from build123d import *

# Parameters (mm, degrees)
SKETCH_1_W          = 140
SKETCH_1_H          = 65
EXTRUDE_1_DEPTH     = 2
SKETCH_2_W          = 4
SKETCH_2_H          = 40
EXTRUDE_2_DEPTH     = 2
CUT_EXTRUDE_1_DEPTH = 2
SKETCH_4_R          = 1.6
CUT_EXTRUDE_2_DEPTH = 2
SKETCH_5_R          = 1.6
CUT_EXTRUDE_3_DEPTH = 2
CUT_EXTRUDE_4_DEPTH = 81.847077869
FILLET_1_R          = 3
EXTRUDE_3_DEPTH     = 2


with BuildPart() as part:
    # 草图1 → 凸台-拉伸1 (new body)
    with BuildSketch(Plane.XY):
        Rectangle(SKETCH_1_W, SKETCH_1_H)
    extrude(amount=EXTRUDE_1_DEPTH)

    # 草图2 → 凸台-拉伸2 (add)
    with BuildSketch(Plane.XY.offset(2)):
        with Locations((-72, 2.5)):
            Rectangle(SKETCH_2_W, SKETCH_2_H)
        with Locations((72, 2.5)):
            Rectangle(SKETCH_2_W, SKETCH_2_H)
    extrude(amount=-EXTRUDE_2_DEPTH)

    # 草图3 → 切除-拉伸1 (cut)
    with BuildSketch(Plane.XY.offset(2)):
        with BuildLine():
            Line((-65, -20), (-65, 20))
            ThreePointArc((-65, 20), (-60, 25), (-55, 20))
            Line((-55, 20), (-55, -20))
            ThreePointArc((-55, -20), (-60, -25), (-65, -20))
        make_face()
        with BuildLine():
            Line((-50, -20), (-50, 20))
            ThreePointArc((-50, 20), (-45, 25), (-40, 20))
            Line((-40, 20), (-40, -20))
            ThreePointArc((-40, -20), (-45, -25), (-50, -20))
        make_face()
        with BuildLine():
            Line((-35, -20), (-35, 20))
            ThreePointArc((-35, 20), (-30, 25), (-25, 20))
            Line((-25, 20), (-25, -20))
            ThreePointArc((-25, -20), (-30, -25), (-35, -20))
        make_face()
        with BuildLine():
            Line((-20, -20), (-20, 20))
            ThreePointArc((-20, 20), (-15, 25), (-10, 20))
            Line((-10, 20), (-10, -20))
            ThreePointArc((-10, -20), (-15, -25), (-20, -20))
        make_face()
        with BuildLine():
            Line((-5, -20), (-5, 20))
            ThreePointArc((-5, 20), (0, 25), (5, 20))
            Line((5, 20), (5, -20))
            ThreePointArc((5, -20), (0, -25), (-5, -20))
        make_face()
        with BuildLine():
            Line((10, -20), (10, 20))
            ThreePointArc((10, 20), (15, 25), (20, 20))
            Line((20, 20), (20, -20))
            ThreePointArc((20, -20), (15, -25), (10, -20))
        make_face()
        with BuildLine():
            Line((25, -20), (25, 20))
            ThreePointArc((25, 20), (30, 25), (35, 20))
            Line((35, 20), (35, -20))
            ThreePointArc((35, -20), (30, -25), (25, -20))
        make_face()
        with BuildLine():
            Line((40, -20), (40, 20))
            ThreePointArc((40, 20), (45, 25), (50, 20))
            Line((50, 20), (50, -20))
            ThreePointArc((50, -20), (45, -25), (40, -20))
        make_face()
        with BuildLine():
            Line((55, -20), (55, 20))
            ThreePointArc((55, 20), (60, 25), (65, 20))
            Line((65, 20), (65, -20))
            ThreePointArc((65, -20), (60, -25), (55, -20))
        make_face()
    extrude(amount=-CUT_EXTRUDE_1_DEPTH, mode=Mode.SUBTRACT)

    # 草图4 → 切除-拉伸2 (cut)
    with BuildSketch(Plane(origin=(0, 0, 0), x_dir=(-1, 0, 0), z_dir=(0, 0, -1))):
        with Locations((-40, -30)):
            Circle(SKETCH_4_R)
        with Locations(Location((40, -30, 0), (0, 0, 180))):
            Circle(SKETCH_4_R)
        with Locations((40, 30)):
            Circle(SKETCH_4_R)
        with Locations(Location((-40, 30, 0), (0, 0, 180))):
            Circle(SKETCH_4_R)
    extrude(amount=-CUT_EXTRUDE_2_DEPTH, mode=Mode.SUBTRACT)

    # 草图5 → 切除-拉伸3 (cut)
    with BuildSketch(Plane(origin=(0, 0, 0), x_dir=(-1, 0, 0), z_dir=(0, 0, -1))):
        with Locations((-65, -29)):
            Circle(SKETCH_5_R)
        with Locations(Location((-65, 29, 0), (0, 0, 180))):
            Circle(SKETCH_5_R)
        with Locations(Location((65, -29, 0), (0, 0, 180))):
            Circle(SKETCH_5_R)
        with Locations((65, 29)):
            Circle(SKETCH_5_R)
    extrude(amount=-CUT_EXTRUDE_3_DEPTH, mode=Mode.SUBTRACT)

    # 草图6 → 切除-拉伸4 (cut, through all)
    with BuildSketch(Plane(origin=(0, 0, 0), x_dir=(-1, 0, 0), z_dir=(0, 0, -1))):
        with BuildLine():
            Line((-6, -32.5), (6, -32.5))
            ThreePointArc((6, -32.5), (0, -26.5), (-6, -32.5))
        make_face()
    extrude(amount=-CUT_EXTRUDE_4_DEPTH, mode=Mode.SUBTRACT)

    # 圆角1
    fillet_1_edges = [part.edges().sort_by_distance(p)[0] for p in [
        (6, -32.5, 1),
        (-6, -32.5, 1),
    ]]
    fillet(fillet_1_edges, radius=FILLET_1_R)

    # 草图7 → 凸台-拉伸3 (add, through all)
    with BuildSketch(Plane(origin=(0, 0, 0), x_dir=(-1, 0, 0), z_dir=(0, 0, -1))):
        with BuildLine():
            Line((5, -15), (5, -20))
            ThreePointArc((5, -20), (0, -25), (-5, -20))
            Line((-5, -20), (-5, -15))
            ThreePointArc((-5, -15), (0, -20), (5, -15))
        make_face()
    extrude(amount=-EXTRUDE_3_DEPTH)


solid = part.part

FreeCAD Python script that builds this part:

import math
import FreeCAD as App
import Part
import Sketcher
from FreeCAD import Vector
Q = App.Units.Quantity


def edges_at(feature, points):
    """Names of the edges that pass closest to the given points."""
    edges = feature.Shape.Edges
    near = lambda p: min(range(len(edges)), key=lambda i: edges[i].distToShape(Part.Vertex(*p))[0])
    return sorted({f"Edge{near(p) + 1}" for p in points})

doc = App.newDocument("Part")
body = doc.addObject("PartDesign::Body", "Body")

# Sketch on XY plane
sketch1 = body.newObject("Sketcher::SketchObject", "Sketch")
sketch1.AttachmentSupport = (doc.getObject("XY_Plane"), [""])
sketch1.MapMode = "FlatFace"
sketch1.addGeometry([
    Part.LineSegment(Vector(-70, 32, 0), Vector(-70, -32, 0)),
    Part.LineSegment(Vector(-70, -32, 0), Vector(70, -32, 0)),
    Part.LineSegment(Vector(70, -32, 0), Vector(70, 32, 0)),
    Part.LineSegment(Vector(70, 32, 0), Vector(-70, 32, 0)),
], False)
sketch1.addConstraint([
    Sketcher.Constraint("Coincident", 0, 2, 1, 1),
    Sketcher.Constraint("Coincident", 1, 2, 2, 1),
    Sketcher.Constraint("Coincident", 2, 2, 3, 1),
    Sketcher.Constraint("Coincident", 3, 2, 0, 1),
    Sketcher.Constraint("Vertical", 0),
    Sketcher.Constraint("Horizontal", 1),
    Sketcher.Constraint("Vertical", 2),
    Sketcher.Constraint("Horizontal", 3),
    Sketcher.Constraint("Symmetric", 0, 2, 2, 2, -1, 1),
    Sketcher.Constraint("DistanceX", 1, 1, 1, 2, Q("140 mm")),
    Sketcher.Constraint("DistanceY", 0, 2, 0, 1, Q("65 mm")),
])
pad1 = body.newObject("PartDesign::Pad", "Pad")
pad1.Profile = sketch1
pad1.Length = 2

# Sketch on XY plane
sketch2 = body.newObject("Sketcher::SketchObject", "Sketch001")
sketch2.AttachmentSupport = (doc.getObject("XY_Plane"), [""])
sketch2.MapMode = "FlatFace"
sketch2.AttachmentOffset = App.Placement(Vector(0, 0, 2), App.Rotation())
sketch2.addGeometry([
    Part.LineSegment(Vector(-74, 22.5, 0), Vector(-74, -17.5, 0)),  # 0
    Part.LineSegment(Vector(-74, -17.5, 0), Vector(-70, -17.5, 0)),  # 1
    Part.LineSegment(Vector(-70, -17.5, 0), Vector(-70, 22.5, 0)),  # 2
    Part.LineSegment(Vector(-70, 22.5, 0), Vector(-74, 22.5, 0)),  # 3
    Part.LineSegment(Vector(70, 22.5, 0), Vector(70, -17.5, 0)),  # 4
    Part.LineSegment(Vector(70, -17.5, 0), Vector(74, -17.5, 0)),  # 5
    Part.LineSegment(Vector(74, -17.5, 0), Vector(74, 22.5, 0)),  # 6
    Part.LineSegment(Vector(74, 22.5, 0), Vector(70, 22.5, 0)),  # 7
], False)
sketch2.addConstraint([
    Sketcher.Constraint("Coincident", 0, 2, 1, 1),
    Sketcher.Constraint("Coincident", 1, 2, 2, 1),
    Sketcher.Constraint("Coincident", 2, 2, 3, 1),
    Sketcher.Constraint("Coincident", 3, 2, 0, 1),
    Sketcher.Constraint("Coincident", 4, 2, 5, 1),
    Sketcher.Constraint("Coincident", 5, 2, 6, 1),
    Sketcher.Constraint("Coincident", 6, 2, 7, 1),
    Sketcher.Constraint("Coincident", 7, 2, 4, 1),
    Sketcher.Constraint("Vertical", 0),
    Sketcher.Constraint("Horizontal", 1),
    Sketcher.Constraint("Vertical", 2),
    Sketcher.Constraint("Horizontal", 3),
    Sketcher.Constraint("Vertical", 4),
    Sketcher.Constraint("Horizontal", 5),
    Sketcher.Constraint("Vertical", 6),
    Sketcher.Constraint("Horizontal", 7),
    Sketcher.Constraint("Symmetric", 1, 2, 4, 2, -2),
    Sketcher.Constraint("Symmetric", 3, 2, 6, 2, -2),
    Sketcher.Constraint("DistanceX", 1, 1, 1, 2, Q("4 mm")),
    Sketcher.Constraint("DistanceY", 0, 2, 0, 1, Q("40 mm")),
    Sketcher.Constraint("DistanceX", 0, 2, -1, 1, Q("74 mm")),
    Sketcher.Constraint("DistanceY", 0, 2, -1, 1, Q("17.5 mm")),
])
pad2 = body.newObject("PartDesign::Pad", "Pad001")
pad2.Profile = sketch2
pad2.Length = 2
pad2.Reversed = True

# Sketch on XY plane
sketch3 = body.newObject("Sketcher::SketchObject", "Sketch002")
sketch3.AttachmentSupport = (doc.getObject("XY_Plane"), [""])
sketch3.MapMode = "FlatFace"
sketch3.AttachmentOffset = App.Placement(Vector(0, 0, 2), App.Rotation())
sketch3.addGeometry([
    Part.LineSegment(Vector(-65, 20, 0), Vector(-65, -20, 0)),  # 0
    Part.ArcOfCircle(Part.Circle(Vector(-60, -20, 0), Vector(0, 0, 1), 5), math.radians(180), math.radians(360)),  # 1
    Part.LineSegment(Vector(-55, -20, 0), Vector(-55, 20, 0)),  # 2
    Part.ArcOfCircle(Part.Circle(Vector(-60, 20, 0), Vector(0, 0, 1), 5), math.radians(0), math.radians(180)),  # 3
    Part.LineSegment(Vector(-50, 20, 0), Vector(-50, -20, 0)),  # 4
    Part.ArcOfCircle(Part.Circle(Vector(-45, -20, 0), Vector(0, 0, 1), 5), math.radians(180), math.radians(360)),  # 5
    Part.LineSegment(Vector(-40, -20, 0), Vector(-40, 20, 0)),  # 6
    Part.ArcOfCircle(Part.Circle(Vector(-45, 20, 0), Vector(0, 0, 1), 5), math.radians(0), math.radians(180)),  # 7
    Part.LineSegment(Vector(-35, 20, 0), Vector(-35, -20, 0)),  # 8
    Part.ArcOfCircle(Part.Circle(Vector(-30, -20, 0), Vector(0, 0, 1), 5), math.radians(180), math.radians(360)),  # 9
    Part.LineSegment(Vector(-25, -20, 0), Vector(-25, 20, 0)),  # 10
    Part.ArcOfCircle(Part.Circle(Vector(-30, 20, 0), Vector(0, 0, 1), 5), math.radians(0), math.radians(180)),  # 11
    Part.LineSegment(Vector(-20, 20, 0), Vector(-20, -20, 0)),  # 12
    Part.ArcOfCircle(Part.Circle(Vector(-15, -20, 0), Vector(0, 0, 1), 5), math.radians(180), math.radians(360)),  # 13
    Part.LineSegment(Vector(-10, -20, 0), Vector(-10, 20, 0)),  # 14
    Part.ArcOfCircle(Part.Circle(Vector(-15, 20, 0), Vector(0, 0, 1), 5), math.radians(0), math.radians(180)),  # 15
    Part.LineSegment(Vector(-5, 20, 0), Vector(-5, -20, 0)),  # 16
    Part.ArcOfCircle(Part.Circle(Vector(0, -20, 0), Vector(0, 0, 1), 5), math.radians(180), math.radians(360)),  # 17
    Part.LineSegment(Vector(5, -20, 0), Vector(5, 20, 0)),  # 18
    Part.ArcOfCircle(Part.Circle(Vector(0, 20, 0), Vector(0, 0, 1), 5), math.radians(0), math.radians(180)),  # 19
    Part.LineSegment(Vector(10, 20, 0), Vector(10, -20, 0)),  # 20
    Part.ArcOfCircle(Part.Circle(Vector(15, -20, 0), Vector(0, 0, 1), 5), math.radians(180), math.radians(360)),  # 21
    Part.LineSegment(Vector(20, -20, 0), Vector(20, 20, 0)),  # 22
    Part.ArcOfCircle(Part.Circle(Vector(15, 20, 0), Vector(0, 0, 1), 5), math.radians(0), math.radians(180)),  # 23
    Part.LineSegment(Vector(25, 20, 0), Vector(25, -20, 0)),  # 24
    Part.ArcOfCircle(Part.Circle(Vector(30, -20, 0), Vector(0, 0, 1), 5), math.radians(180), math.radians(360)),  # 25
    Part.LineSegment(Vector(35, -20, 0), Vector(35, 20, 0)),  # 26
    Part.ArcOfCircle(Part.Circle(Vector(30, 20, 0), Vector(0, 0, 1), 5), math.radians(0), math.radians(180)),  # 27
    Part.LineSegment(Vector(40, 20, 0), Vector(40, -20, 0)),  # 28
    Part.ArcOfCircle(Part.Circle(Vector(45, -20, 0), Vector(0, 0, 1), 5), math.radians(180), math.radians(360)),  # 29
    Part.LineSegment(Vector(50, -20, 0), Vector(50, 20, 0)),  # 30
    Part.ArcOfCircle(Part.Circle(Vector(45, 20, 0), Vector(0, 0, 1), 5), math.radians(0), math.radians(180)),  # 31
    Part.LineSegment(Vector(55, 20, 0), Vector(55, -20, 0)),  # 32
    Part.ArcOfCircle(Part.Circle(Vector(60, -20, 0), Vector(0, 0, 1), 5), math.radians(180), math.radians(360)),  # 33
    Part.LineSegment(Vector(65, -20, 0), Vector(65, 20, 0)),  # 34
    Part.ArcOfCircle(Part.Circle(Vector(60, 20, 0), Vector(0, 0, 1), 5), math.radians(0), math.radians(180)),  # 35
], False)
sketch3.addConstraint([
    Sketcher.Constraint("Tangent", 0, 2, 1, 1),
    Sketcher.Constraint("Tangent", 1, 2, 2, 1),
    Sketcher.Constraint("Tangent", 2, 2, 3, 1),
    Sketcher.Constraint("Tangent", 3, 2, 0, 1),
    Sketcher.Constraint("Tangent", 4, 2, 5, 1),
    Sketcher.Constraint("Tangent", 5, 2, 6, 1),
    Sketcher.Constraint("Tangent", 6, 2, 7, 1),
    Sketcher.Constraint("Tangent", 7, 2, 4, 1),
    Sketcher.Constraint("Tangent", 8, 2, 9, 1),
    Sketcher.Constraint("Tangent", 9, 2, 10, 1),
    Sketcher.Constraint("Tangent", 10, 2, 11, 1),
    Sketcher.Constraint("Tangent", 11, 2, 8, 1),
    Sketcher.Constraint("Tangent", 12, 2, 13, 1),
    Sketcher.Constraint("Tangent", 13, 2, 14, 1),
    Sketcher.Constraint("Tangent", 14, 2, 15, 1),
    Sketcher.Constraint("Tangent", 15, 2, 12, 1),
    Sketcher.Constraint("Tangent", 16, 2, 17, 1),
    Sketcher.Constraint("Tangent", 17, 2, 18, 1),
    Sketcher.Constraint("Tangent", 18, 2, 19, 1),
    Sketcher.Constraint("Tangent", 19, 2, 16, 1),
    Sketcher.Constraint("Tangent", 20, 2, 21, 1),
    Sketcher.Constraint("Tangent", 21, 2, 22, 1),
    Sketcher.Constraint("Tangent", 22, 2, 23, 1),
    Sketcher.Constraint("Tangent", 23, 2, 20, 1),
    Sketcher.Constraint("Tangent", 24, 2, 25, 1),
    Sketcher.Constraint("Tangent", 25, 2, 26, 1),
    Sketcher.Constraint("Tangent", 26, 2, 27, 1),
    Sketcher.Constraint("Tangent", 27, 2, 24, 1),
    Sketcher.Constraint("Tangent", 28, 2, 29, 1),
    Sketcher.Constraint("Tangent", 29, 2, 30, 1),
    Sketcher.Constraint("Tangent", 30, 2, 31, 1),
    Sketcher.Constraint("Tangent", 31, 2, 28, 1),
    Sketcher.Constraint("Tangent", 32, 2, 33, 1),
    Sketcher.Constraint("Tangent", 33, 2, 34, 1),
    Sketcher.Constraint("Tangent", 34, 2, 35, 1),
    Sketcher.Constraint("Tangent", 35, 2, 32, 1),
    Sketcher.Constraint("Vertical", 0),
    Sketcher.Constraint("Vertical", 2),
    Sketcher.Constraint("Vertical", 4),
    Sketcher.Constraint("Vertical", 6),
    Sketcher.Constraint("Vertical", 8),
    Sketcher.Constraint("Vertical", 10),
    Sketcher.Constraint("Vertical", 12),
    Sketcher.Constraint("Vertical", 14),
    Sketcher.Constraint("Vertical", 16),
    Sketcher.Constraint("Vertical", 18),
    Sketcher.Constraint("Vertical", 20),
    Sketcher.Constraint("Vertical", 22),
    Sketcher.Constraint("Vertical", 24),
    Sketcher.Constraint("Vertical", 26),
    Sketcher.Constraint("Vertical", 28),
    Sketcher.Constraint("Vertical", 30),
    Sketcher.Constraint("Vertical", 32),
    Sketcher.Constraint("Vertical", 34),
    Sketcher.Constraint("Equal", 3, 5),
    Sketcher.Constraint("Equal", 7, 9),
    Sketcher.Constraint("Equal", 11, 13),
    Sketcher.Constraint("Equal", 15, 17),
    Sketcher.Constraint("Equal", 19, 21),
    Sketcher.Constraint("Equal", 23, 25),
    Sketcher.Constraint("Equal", 27, 29),
    Sketcher.Constraint("Equal", 31, 33),
    Sketcher.Constraint("Symmetric", 17, 3, 19, 3, -1, 1),
    Sketcher.Constraint("Symmetric", 15, 3, 21, 3, -1, 1),
    Sketcher.Constraint("Symmetric", 11, 3, 25, 3, -1, 1),
    Sketcher.Constraint("Symmetric", 7, 3, 29, 3, -1, 1),
    Sketcher.Constraint("Symmetric", 3, 3, 33, 3, -1, 1),
    Sketcher.Constraint("Horizontal", 1, 3, 5, 3),
    Sketcher.Constraint("Horizontal", 3, 3, 7, 3),
    Sketcher.Constraint("Horizontal", 5, 3, 9, 3),
    Sketcher.Constraint("Horizontal", 7, 3, 11, 3),
    Sketcher.Constraint("Horizontal", 9, 3, 13, 3),
    Sketcher.Constraint("Horizontal", 11, 3, 15, 3),
    Sketcher.Constraint("Horizontal", 13, 3, 17, 3),
    Sketcher.Constraint("Horizontal", 15, 3, 19, 3),
    Sketcher.Constraint("Horizontal", 19, 3, 23, 3),
    Sketcher.Constraint("Horizontal", 23, 3, 27, 3),
    Sketcher.Constraint("Horizontal", 27, 3, 31, 3),
    Sketcher.Constraint("Horizontal", 31, 3, 35, 3),
    Sketcher.Constraint("Radius", 1, Q("5 mm")),
    Sketcher.Constraint("DistanceY", 0, 2, 0, 1, Q("40 mm")),
    Sketcher.Constraint("DistanceX", 1, 3, -1, 1, Q("60 mm")),
    Sketcher.Constraint("DistanceX", 5, 3, -1, 1, Q("45 mm")),
    Sketcher.Constraint("DistanceX", 9, 3, -1, 1, Q("30 mm")),
    Sketcher.Constraint("DistanceX", 13, 3, -1, 1, Q("15 mm")),
])
pocket1 = body.newObject("PartDesign::Pocket", "Pocket")
pocket1.Profile = sketch3
pocket1.Length = 2

# Sketch on XY plane
sketch4 = body.newObject("Sketcher::SketchObject", "Sketch003")
sketch4.AttachmentSupport = (doc.getObject("XY_Plane"), [""])
sketch4.MapMode = "FlatFace"
sketch4.addGeometry([
    Part.Circle(Vector(40, -30, 0), Vector(0, 0, 1), 1.6),
    Part.Circle(Vector(-40, -30, 0), Vector(0, 0, 1), 1.6),
    Part.Circle(Vector(-40, 30, 0), Vector(0, 0, 1), 1.6),
    Part.Circle(Vector(40, 30, 0), Vector(0, 0, 1), 1.6),
], False)
sketch4.addConstraint([
    Sketcher.Constraint("Equal", 0, 1),
    Sketcher.Constraint("Equal", 1, 2),
    Sketcher.Constraint("Equal", 2, 3),
    Sketcher.Constraint("Symmetric", 0, 3, 2, 3, -1, 1),
    Sketcher.Constraint("Symmetric", 1, 3, 3, 3, -1, 1),
    Sketcher.Constraint("Symmetric", 0, 3, 1, 3, -2),
    Sketcher.Constraint("Diameter", 0, Q("3.2 mm")),
    Sketcher.Constraint("DistanceX", -1, 1, 0, 3, Q("40 mm")),
    Sketcher.Constraint("DistanceY", 0, 3, -1, 1, Q("30 mm")),
])
pocket2 = body.newObject("PartDesign::Pocket", "Pocket001")
pocket2.Profile = sketch4
pocket2.Length = 2
pocket2.Reversed = True

# Sketch on XY plane
sketch5 = body.newObject("Sketcher::SketchObject", "Sketch004")
sketch5.AttachmentSupport = (doc.getObject("XY_Plane"), [""])
sketch5.MapMode = "FlatFace"
sketch5.addGeometry([
    Part.Circle(Vector(65, -29, 0), Vector(0, 0, 1), 1.6),
    Part.Circle(Vector(65, 29, 0), Vector(0, 0, 1), 1.6),
    Part.Circle(Vector(-65, -29, 0), Vector(0, 0, 1), 1.6),
    Part.Circle(Vector(-65, 29, 0), Vector(0, 0, 1), 1.6),
], False)
sketch5.addConstraint([
    Sketcher.Constraint("Equal", 0, 1),
    Sketcher.Constraint("Equal", 1, 2),
    Sketcher.Constraint("Equal", 2, 3),
    Sketcher.Constraint("Symmetric", 1, 3, 2, 3, -1, 1),
    Sketcher.Constraint("Symmetric", 0, 3, 3, 3, -1, 1),
    Sketcher.Constraint("Symmetric", 0, 3, 2, 3, -2),
    Sketcher.Constraint("Diameter", 0, Q("3.2 mm")),
    Sketcher.Constraint("DistanceX", -1, 1, 0, 3, Q("65 mm")),
    Sketcher.Constraint("DistanceY", 0, 3, -1, 1, Q("29 mm")),
])
pocket3 = body.newObject("PartDesign::Pocket", "Pocket002")
pocket3.Profile = sketch5
pocket3.Length = 2
pocket3.Reversed = True

# Sketch on XY plane
sketch6 = body.newObject("Sketcher::SketchObject", "Sketch005")
sketch6.AttachmentSupport = (doc.getObject("XY_Plane"), [""])
sketch6.MapMode = "FlatFace"
sketch6.addGeometry([
    Part.LineSegment(Vector(6, -32, 0), Vector(-6, -32, 0)),
    Part.ArcOfCircle(Part.Circle(Vector(0, -32, 0), Vector(0, 0, 1), 6), math.radians(0), math.radians(180)),
], False)
sketch6.addConstraint([
    Sketcher.Constraint("Coincident", 0, 1, 1, 1),
    Sketcher.Constraint("Coincident", 1, 2, 0, 2),
    Sketcher.Constraint("Horizontal", 0),
    Sketcher.Constraint("PointOnObject", 1, 3, -2),
    Sketcher.Constraint("Horizontal", 1, 3, 0, 1),
    Sketcher.Constraint("Radius", 1, Q("6 mm")),
    Sketcher.Constraint("DistanceY", 1, 3, -1, 1, Q("32.5 mm")),
])
pocket4 = body.newObject("PartDesign::Pocket", "Pocket003")
pocket4.Profile = sketch6
pocket4.Type = "ThroughAll"
pocket4.Reversed = True
doc.recompute()

fillet = body.newObject("PartDesign::Fillet", "Fillet")
fillet.Base = (pocket4, edges_at(pocket4, [(6, -32.5, 1), (-6, -32.5, 1)]))
fillet.Radius = 3

# Sketch on XY plane
sketch7 = body.newObject("Sketcher::SketchObject", "Sketch006")
sketch7.AttachmentSupport = (doc.getObject("XY_Plane"), [""])
sketch7.MapMode = "FlatFace"
sketch7.addGeometry([
    Part.LineSegment(Vector(-5, -20, 0), Vector(-5, -15, 0)),
    Part.ArcOfCircle(Part.Circle(Vector(0, -15, 0), Vector(0, 0, 1), 5), math.radians(180), math.radians(360)),
    Part.LineSegment(Vector(5, -15, 0), Vector(5, -20, 0)),
    Part.ArcOfCircle(Part.Circle(Vector(0, -20, 0), Vector(0, 0, 1), 5), math.radians(180), math.radians(360)),
], False)
sketch7.addConstraint([
    Sketcher.Constraint("Tangent", 0, 2, 1, 1),
    Sketcher.Constraint("Tangent", 1, 2, 2, 1),
    Sketcher.Constraint("Tangent", 2, 2, 3, 2),
    Sketcher.Constraint("Tangent", 3, 1, 0, 1),
    Sketcher.Constraint("Vertical", 0),
    Sketcher.Constraint("Vertical", 2),
    Sketcher.Constraint("PointOnObject", 1, 3, -2),
    Sketcher.Constraint("Radius", 1, Q("5 mm")),
    Sketcher.Constraint("DistanceY", 0, 1, 0, 2, Q("5 mm")),
    Sketcher.Constraint("DistanceY", 1, 3, -1, 1, Q("15 mm")),
])
pad3 = body.newObject("PartDesign::Pad", "Pad002")
pad3.Profile = sketch7
pad3.Length = 2

doc.recompute()
